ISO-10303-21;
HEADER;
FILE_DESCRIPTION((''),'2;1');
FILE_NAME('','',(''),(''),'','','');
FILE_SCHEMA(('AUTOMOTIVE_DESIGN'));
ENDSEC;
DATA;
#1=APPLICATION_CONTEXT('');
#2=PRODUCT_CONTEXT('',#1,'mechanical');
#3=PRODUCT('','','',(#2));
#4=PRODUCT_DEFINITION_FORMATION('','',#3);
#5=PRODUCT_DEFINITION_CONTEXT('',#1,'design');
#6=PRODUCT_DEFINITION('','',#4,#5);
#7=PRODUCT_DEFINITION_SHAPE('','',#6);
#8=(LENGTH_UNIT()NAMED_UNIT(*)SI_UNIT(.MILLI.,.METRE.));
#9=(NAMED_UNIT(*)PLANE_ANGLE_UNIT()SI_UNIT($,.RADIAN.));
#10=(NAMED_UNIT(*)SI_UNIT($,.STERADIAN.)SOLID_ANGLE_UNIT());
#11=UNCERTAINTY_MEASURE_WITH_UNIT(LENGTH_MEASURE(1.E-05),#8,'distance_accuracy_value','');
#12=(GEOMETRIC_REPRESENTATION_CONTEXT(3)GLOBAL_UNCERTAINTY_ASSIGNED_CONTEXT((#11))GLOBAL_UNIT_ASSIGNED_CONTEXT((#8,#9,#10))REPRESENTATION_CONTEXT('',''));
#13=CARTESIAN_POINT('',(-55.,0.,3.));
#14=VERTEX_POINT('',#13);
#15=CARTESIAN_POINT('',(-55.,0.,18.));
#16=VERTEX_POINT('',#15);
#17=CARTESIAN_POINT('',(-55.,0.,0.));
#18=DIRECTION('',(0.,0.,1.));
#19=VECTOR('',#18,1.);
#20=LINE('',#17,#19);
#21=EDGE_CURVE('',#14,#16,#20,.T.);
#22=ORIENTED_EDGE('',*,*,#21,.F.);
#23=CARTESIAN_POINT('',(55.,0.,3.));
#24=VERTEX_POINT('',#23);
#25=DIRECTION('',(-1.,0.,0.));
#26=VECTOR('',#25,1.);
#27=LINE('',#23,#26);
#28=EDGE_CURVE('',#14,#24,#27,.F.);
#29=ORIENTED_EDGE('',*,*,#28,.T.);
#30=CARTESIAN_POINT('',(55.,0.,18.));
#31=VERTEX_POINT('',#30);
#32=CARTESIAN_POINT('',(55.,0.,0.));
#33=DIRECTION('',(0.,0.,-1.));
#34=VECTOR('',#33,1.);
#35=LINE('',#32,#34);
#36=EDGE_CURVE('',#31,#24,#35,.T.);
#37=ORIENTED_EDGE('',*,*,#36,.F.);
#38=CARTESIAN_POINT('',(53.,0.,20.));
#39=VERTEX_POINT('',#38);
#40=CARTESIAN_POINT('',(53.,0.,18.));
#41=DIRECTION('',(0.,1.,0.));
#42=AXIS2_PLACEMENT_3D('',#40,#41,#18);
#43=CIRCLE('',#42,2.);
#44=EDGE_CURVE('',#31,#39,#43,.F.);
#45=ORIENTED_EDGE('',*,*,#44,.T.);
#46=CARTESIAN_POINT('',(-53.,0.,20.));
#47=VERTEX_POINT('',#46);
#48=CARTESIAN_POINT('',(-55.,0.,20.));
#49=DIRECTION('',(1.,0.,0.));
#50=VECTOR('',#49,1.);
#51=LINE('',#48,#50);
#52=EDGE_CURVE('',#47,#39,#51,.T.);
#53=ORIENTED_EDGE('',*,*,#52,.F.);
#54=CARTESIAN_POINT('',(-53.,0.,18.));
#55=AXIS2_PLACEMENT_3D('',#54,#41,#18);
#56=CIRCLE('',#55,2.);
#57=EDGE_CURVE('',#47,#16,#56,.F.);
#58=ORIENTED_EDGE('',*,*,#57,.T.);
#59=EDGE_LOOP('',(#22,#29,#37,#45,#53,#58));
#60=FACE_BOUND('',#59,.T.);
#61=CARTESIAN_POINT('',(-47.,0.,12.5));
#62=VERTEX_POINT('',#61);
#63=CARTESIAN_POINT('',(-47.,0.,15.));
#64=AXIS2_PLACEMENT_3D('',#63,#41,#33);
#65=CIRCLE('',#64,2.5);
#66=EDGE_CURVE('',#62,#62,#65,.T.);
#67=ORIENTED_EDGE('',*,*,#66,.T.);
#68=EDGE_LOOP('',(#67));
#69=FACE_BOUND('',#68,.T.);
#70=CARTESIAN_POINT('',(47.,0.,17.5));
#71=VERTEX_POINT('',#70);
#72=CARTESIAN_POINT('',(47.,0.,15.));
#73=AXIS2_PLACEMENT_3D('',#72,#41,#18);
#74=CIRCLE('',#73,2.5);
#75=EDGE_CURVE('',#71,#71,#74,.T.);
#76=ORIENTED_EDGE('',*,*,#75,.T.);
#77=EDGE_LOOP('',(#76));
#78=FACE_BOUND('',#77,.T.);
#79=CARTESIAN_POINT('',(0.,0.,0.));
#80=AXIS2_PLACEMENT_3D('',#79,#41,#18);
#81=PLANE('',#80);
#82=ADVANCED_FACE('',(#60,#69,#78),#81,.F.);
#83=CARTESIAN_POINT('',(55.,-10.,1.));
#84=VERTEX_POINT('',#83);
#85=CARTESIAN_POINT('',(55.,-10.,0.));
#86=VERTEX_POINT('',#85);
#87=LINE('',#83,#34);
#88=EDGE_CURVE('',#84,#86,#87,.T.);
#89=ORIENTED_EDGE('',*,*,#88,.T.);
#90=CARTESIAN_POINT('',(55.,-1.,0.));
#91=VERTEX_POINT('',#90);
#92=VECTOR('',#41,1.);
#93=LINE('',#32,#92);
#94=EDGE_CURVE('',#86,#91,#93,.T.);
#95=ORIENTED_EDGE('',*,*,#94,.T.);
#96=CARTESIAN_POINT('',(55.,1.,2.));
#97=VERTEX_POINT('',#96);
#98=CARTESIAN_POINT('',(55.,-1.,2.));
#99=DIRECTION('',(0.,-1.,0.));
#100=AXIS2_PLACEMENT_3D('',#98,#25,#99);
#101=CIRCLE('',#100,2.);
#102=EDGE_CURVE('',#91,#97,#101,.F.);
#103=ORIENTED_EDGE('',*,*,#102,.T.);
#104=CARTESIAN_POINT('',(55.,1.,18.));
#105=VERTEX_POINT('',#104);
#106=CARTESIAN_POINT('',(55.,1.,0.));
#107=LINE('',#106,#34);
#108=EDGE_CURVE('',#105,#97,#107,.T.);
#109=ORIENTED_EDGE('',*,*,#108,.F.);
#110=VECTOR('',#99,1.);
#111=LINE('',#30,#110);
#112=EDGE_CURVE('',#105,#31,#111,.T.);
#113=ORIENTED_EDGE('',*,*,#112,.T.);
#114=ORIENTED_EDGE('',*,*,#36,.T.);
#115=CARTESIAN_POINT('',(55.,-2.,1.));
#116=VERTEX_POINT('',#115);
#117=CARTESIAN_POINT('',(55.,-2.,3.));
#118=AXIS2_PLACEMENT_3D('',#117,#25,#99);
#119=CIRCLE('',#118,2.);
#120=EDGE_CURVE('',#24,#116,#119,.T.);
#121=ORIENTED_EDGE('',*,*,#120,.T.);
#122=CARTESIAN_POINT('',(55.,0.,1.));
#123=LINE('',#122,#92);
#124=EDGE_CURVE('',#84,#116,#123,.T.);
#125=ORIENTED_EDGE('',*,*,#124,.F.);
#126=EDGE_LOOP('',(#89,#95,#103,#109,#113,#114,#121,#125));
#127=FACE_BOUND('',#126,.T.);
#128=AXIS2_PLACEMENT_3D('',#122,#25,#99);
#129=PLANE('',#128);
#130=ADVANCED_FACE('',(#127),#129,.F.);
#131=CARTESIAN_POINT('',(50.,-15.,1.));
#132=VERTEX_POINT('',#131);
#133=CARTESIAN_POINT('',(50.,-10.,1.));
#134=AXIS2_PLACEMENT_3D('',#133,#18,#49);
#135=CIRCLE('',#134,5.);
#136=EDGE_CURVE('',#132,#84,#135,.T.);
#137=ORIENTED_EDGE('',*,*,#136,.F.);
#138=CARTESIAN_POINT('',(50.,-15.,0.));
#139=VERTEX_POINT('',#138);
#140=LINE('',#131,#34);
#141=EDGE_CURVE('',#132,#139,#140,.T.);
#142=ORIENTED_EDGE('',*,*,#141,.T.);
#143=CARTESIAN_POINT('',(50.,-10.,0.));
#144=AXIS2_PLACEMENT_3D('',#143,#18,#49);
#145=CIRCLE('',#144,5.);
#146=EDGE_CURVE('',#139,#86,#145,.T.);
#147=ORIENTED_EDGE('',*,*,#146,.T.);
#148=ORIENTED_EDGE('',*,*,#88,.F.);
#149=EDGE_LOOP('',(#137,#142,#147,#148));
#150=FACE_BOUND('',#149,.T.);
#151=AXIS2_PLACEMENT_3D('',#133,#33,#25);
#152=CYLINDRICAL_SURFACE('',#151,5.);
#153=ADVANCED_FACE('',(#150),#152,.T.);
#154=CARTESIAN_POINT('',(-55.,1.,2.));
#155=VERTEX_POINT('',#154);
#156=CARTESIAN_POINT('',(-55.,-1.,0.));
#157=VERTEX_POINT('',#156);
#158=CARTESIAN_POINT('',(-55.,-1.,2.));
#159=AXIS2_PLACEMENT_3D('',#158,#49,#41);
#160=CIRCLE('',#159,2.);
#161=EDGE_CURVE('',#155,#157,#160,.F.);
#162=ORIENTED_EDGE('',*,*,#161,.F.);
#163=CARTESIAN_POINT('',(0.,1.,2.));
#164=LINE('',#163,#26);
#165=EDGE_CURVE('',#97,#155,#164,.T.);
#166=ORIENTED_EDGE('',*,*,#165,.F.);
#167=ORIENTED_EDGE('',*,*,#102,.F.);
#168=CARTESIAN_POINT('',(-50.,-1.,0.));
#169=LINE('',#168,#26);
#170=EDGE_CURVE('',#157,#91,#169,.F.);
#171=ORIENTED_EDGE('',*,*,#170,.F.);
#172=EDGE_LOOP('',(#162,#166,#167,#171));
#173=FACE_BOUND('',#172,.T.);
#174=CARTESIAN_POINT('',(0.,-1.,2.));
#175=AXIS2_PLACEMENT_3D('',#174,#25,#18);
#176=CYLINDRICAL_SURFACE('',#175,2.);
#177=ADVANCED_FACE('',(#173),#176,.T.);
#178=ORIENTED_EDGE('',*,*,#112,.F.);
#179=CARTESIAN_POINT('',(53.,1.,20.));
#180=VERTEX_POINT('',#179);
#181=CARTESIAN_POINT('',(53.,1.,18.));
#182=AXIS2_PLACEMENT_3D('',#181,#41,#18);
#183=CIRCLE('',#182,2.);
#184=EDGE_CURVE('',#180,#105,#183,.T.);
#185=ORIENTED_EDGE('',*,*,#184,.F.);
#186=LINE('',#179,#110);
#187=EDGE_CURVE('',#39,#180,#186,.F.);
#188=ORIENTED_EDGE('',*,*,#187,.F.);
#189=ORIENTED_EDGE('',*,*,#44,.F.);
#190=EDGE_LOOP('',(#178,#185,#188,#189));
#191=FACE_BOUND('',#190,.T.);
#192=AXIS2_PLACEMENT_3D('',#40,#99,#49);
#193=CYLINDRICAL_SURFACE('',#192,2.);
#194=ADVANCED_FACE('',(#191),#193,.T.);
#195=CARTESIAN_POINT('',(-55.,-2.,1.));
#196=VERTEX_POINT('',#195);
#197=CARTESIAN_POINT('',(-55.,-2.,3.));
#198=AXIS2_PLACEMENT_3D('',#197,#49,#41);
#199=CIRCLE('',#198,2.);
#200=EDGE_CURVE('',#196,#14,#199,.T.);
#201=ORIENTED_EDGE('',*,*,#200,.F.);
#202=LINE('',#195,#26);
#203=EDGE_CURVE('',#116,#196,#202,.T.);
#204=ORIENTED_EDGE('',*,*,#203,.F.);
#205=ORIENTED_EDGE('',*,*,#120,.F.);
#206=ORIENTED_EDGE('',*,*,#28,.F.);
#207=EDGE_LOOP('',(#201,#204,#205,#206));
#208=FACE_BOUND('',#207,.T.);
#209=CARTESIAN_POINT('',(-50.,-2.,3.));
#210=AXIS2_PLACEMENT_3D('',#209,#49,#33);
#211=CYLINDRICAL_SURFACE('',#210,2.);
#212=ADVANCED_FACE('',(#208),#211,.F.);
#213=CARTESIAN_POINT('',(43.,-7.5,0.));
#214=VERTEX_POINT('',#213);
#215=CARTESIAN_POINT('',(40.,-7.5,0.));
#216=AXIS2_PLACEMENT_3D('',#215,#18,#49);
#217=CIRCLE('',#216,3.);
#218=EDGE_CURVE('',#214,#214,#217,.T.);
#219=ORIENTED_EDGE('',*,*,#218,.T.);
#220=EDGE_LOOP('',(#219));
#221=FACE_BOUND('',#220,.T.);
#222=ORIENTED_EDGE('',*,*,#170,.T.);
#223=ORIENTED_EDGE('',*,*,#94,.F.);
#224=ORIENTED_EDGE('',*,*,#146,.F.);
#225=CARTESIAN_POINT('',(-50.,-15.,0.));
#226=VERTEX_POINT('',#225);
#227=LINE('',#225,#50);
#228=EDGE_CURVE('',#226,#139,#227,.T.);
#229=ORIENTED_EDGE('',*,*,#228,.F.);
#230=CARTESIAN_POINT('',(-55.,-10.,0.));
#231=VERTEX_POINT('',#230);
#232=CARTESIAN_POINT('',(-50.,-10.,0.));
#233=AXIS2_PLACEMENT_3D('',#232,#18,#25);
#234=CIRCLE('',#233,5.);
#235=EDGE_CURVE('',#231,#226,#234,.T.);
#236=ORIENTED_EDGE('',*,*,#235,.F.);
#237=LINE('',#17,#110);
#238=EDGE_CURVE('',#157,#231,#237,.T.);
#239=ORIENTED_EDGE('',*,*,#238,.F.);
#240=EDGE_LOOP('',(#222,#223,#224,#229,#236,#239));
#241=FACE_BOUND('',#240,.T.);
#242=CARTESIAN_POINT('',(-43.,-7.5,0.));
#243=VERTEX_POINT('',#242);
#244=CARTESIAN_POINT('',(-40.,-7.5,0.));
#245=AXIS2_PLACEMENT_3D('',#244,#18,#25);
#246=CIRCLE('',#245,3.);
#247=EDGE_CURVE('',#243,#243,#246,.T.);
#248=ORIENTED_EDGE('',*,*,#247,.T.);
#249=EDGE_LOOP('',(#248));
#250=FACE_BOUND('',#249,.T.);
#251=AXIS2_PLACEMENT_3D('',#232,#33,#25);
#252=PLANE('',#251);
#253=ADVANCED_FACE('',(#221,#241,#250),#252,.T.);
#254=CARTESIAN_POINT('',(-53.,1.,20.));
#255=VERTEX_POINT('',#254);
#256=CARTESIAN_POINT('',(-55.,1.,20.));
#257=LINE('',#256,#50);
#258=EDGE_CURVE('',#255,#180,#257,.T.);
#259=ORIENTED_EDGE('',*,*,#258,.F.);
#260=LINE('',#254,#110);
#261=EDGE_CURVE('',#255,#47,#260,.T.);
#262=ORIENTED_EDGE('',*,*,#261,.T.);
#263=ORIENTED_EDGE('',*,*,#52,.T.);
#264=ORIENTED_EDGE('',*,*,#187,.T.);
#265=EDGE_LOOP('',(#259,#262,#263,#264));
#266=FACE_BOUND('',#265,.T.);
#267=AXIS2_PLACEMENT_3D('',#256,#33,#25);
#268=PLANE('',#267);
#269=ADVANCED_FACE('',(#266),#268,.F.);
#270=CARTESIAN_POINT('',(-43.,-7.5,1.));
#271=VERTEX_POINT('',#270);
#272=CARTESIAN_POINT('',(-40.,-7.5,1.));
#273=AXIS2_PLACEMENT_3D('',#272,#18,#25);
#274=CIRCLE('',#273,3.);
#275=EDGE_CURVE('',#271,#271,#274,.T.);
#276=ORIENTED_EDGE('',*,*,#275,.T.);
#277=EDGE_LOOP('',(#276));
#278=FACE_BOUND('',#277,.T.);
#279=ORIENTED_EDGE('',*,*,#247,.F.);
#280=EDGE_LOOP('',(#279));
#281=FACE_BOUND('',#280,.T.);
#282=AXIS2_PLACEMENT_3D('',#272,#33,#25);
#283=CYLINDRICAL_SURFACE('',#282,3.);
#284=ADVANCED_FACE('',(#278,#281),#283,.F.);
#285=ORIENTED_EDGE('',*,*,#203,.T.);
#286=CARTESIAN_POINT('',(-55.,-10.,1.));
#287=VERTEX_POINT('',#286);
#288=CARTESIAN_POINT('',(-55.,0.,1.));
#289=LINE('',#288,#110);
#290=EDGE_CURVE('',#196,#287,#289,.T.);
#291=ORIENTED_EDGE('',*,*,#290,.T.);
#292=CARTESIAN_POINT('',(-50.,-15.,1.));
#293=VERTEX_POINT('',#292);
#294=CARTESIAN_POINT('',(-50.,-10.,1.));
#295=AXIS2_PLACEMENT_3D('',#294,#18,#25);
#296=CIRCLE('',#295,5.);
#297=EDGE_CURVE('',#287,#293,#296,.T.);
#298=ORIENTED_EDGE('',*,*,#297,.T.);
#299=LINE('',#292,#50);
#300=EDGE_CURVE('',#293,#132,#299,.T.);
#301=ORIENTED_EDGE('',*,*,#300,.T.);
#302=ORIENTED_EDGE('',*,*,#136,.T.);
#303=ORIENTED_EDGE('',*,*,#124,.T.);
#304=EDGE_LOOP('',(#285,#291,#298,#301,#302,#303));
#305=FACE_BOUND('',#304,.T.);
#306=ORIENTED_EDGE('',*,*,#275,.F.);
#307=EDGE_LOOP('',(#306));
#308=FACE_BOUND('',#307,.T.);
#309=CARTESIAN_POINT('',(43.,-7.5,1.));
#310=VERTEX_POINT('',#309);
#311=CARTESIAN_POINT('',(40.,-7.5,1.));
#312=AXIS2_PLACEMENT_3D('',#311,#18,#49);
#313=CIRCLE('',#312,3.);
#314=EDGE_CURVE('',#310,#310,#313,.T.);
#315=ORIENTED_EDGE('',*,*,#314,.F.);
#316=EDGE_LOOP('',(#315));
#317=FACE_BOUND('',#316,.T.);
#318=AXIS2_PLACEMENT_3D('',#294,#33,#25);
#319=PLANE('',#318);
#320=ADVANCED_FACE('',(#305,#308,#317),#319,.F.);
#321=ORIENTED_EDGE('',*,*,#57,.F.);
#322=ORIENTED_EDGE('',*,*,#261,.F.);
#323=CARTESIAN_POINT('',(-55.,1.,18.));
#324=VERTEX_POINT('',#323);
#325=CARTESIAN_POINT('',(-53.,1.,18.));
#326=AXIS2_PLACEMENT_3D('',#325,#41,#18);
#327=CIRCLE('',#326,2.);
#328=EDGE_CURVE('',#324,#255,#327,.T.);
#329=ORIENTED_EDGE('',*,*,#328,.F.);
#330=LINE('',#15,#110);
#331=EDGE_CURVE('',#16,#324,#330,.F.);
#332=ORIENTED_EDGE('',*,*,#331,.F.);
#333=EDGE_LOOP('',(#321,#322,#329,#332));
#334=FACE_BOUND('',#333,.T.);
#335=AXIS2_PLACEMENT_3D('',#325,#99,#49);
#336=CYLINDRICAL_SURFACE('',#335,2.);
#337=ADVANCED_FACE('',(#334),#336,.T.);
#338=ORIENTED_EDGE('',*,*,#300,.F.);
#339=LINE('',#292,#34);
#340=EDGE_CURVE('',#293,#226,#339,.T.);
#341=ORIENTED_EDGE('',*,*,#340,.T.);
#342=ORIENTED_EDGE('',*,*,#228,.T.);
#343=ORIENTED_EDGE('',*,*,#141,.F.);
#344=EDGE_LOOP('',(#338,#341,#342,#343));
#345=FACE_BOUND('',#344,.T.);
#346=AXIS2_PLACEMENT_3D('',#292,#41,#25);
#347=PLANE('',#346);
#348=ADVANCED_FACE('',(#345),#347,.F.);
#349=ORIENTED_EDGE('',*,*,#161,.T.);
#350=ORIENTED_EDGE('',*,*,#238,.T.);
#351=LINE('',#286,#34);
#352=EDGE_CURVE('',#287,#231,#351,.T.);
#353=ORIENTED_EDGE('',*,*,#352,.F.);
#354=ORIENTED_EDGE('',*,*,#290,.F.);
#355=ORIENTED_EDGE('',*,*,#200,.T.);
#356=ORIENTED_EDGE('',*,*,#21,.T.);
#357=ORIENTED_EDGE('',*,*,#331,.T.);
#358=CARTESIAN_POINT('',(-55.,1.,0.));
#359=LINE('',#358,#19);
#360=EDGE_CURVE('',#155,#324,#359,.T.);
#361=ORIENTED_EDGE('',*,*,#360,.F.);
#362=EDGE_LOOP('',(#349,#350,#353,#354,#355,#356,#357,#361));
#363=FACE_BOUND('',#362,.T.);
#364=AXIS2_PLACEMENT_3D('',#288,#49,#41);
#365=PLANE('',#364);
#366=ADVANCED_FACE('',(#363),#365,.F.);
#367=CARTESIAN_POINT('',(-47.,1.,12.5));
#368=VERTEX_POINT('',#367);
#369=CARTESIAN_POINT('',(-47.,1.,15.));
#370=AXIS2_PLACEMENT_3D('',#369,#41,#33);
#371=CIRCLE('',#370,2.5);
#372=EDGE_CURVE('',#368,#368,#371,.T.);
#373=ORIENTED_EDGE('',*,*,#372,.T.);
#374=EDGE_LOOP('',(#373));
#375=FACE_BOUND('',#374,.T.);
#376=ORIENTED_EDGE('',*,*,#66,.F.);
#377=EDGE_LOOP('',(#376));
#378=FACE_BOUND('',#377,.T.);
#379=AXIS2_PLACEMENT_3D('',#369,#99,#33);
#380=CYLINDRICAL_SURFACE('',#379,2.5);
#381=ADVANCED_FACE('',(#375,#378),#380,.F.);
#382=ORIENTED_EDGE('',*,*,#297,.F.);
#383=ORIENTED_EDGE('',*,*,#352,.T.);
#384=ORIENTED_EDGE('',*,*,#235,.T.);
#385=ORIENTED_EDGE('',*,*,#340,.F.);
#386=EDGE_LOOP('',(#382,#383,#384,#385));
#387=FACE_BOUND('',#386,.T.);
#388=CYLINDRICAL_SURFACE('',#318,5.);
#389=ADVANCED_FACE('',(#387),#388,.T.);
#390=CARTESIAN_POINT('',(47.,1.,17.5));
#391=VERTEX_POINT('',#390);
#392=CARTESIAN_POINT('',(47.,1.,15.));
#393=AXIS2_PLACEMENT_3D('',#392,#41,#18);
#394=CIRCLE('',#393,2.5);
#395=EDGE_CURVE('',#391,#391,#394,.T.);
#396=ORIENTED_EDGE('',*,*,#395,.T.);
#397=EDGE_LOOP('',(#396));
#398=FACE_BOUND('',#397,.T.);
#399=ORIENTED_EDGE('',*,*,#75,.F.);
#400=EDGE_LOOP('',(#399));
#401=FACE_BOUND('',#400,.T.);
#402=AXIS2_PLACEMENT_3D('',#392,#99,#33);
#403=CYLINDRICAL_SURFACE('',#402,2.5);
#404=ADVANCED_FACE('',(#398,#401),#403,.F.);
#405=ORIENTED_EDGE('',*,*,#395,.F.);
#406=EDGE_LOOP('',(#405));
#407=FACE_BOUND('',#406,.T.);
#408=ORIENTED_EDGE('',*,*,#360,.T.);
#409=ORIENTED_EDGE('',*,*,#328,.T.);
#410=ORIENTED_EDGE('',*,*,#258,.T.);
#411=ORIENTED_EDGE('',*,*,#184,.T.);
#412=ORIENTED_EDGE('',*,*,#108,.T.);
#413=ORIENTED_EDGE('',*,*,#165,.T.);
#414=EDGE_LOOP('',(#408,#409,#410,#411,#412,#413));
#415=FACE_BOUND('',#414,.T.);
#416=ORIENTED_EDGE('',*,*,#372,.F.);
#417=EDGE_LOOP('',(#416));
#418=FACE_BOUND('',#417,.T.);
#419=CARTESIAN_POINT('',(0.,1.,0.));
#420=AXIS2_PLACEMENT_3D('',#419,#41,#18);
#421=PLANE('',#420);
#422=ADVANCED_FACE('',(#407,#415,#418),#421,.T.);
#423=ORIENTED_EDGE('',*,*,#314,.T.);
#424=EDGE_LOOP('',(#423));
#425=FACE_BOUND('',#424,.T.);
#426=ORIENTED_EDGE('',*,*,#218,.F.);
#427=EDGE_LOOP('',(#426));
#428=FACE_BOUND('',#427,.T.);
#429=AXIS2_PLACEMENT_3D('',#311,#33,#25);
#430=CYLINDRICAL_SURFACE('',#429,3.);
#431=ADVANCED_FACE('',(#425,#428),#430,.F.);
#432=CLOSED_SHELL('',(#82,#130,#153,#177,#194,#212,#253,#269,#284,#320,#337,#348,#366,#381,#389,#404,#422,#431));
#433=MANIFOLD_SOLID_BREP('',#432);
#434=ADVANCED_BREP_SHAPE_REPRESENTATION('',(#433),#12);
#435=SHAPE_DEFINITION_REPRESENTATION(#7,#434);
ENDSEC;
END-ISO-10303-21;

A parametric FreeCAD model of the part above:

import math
import FreeCAD as App
import Part
import Sketcher
from FreeCAD import Vector


def edges_at(feature, points):
    """Names of the edges that pass closest to the given points."""
    edges = feature.Shape.Edges
    near = lambda p: min(range(len(edges)), key=lambda i: edges[i].distToShape(Part.Vertex(*p))[0])
    return sorted({f"Edge{near(p) + 1}" for p in points})


def add_polygon(sketch, points):
    """Adds a closed chain of lines whose ends are joined by coincident constraints."""
    first, n = sketch.GeometryCount, len(points)
    for a, b in zip(points, points[1:] + points[:1]):
        sketch.addGeometry(Part.LineSegment(App.Vector(*a, 0), App.Vector(*b, 0)), False)
    for i in range(n):
        sketch.addConstraint(Sketcher.Constraint("Coincident", first + i, 2, first + (i + 1) % n, 1))

doc = App.newDocument("Part")
body = doc.addObject("PartDesign::Body", "Body")

sketch1 = body.newObject("Sketcher::SketchObject", "Sketch")
sketch1.AttachmentSupport = (doc.getObject("XY_Plane"), [""])
sketch1.MapMode = "FlatFace"
sketch1.addGeometry(Part.LineSegment(Vector(55, 0, 0), Vector(-55, 0, 0)), False)
sketch1.addGeometry(Part.LineSegment(Vector(-55, 0, 0), Vector(-55, -10, 0)), False)
sketch1.addGeometry(Part.ArcOfCircle(Part.Circle(Vector(-50, -10, 0), Vector(0, 0, 1), 5), math.radians(180), math.radians(270)), False)
sketch1.addGeometry(Part.LineSegment(Vector(-50, -15, 0), Vector(50, -15, 0)), False)
sketch1.addGeometry(Part.ArcOfCircle(Part.Circle(Vector(50, -10, 0), Vector(0, 0, 1), 5), math.radians(-90), math.radians(0)), False)
sketch1.addGeometry(Part.LineSegment(Vector(55, -10, 0), Vector(55, 0, 0)), False)
sketch1.addGeometry(Part.Circle(Vector(40, -7.5, 0), Vector(0, 0, 1), 3), False)
sketch1.addGeometry(Part.Circle(Vector(-40, -7.5, 0), Vector(0, 0, 1), 3), False)
sketch1.addConstraint(Sketcher.Constraint("Coincident", 0, 2, 1, 1))
sketch1.addConstraint(Sketcher.Constraint("Tangent", 1, 2, 2, 1))
sketch1.addConstraint(Sketcher.Constraint("Tangent", 2, 2, 3, 1))
sketch1.addConstraint(Sketcher.Constraint("Tangent", 3, 2, 4, 1))
sketch1.addConstraint(Sketcher.Constraint("Tangent", 4, 2, 5, 1))
sketch1.addConstraint(Sketcher.Constraint("Coincident", 5, 2, 0, 1))
sketch1.addConstraint(Sketcher.Constraint("Horizontal", 0))
sketch1.addConstraint(Sketcher.Constraint("Vertical", 1))
sketch1.addConstraint(Sketcher.Constraint("Horizontal", 3))
sketch1.addConstraint(Sketcher.Constraint("Vertical", 5))
sketch1.addConstraint(Sketcher.Constraint("Equal", 2, 4))
sketch1.addConstraint(Sketcher.Constraint("Equal", 6, 7))
sketch1.addConstraint(Sketcher.Constraint("Symmetric", 0, 2, 5, 2, -1, 1))
sketch1.addConstraint(Sketcher.Constraint("Symmetric", 6, 3, 7, 3, -2))
sketch1.addConstraint(Sketcher.Constraint("Diameter", 6, 6.0))
sketch1.addConstraint(Sketcher.Constraint("Radius", 2, 5.0))
sketch1.addConstraint(Sketcher.Constraint("DistanceX", 0, 2, 0, 1, 110.0))
sketch1.addConstraint(Sketcher.Constraint("DistanceY", 1, 2, 1, 1, 10.0))
sketch1.addConstraint(Sketcher.Constraint("DistanceX", -1, 1, 6, 3, 40.0))
sketch1.addConstraint(Sketcher.Constraint("DistanceY", 6, 3, -1, 1, 7.5))
pad1 = body.newObject("PartDesign::Pad", "Pad")
pad1.Profile = sketch1
pad1.Length = 1

sketch2 = body.newObject("Sketcher::SketchObject", "Sketch001")
sketch2.AttachmentSupport = (doc.getObject("XZ_Plane"), [""])
sketch2.MapMode = "FlatFace"
add_polygon(sketch2, [(-55, 0), (-55, 20), (55, 20), (55, 0)])
sketch2.addGeometry(Part.Circle(Vector(-47, 15, 0), Vector(0, 0, 1), 2.5), False)
sketch2.addGeometry(Part.Circle(Vector(47, 15, 0), Vector(0, 0, 1), 2.5), False)
sketch2.addConstraint(Sketcher.Constraint("Vertical", 0))
sketch2.addConstraint(Sketcher.Constraint("Horizontal", 1))
sketch2.addConstraint(Sketcher.Constraint("Vertical", 2))
sketch2.addConstraint(Sketcher.Constraint("Horizontal", 3))
sketch2.addConstraint(Sketcher.Constraint("Equal", 4, 5))
sketch2.addConstraint(Sketcher.Constraint("Symmetric", 2, 2, 3, 2, -1, 1))
sketch2.addConstraint(Sketcher.Constraint("Symmetric", 4, 3, 5, 3, -2))
sketch2.addConstraint(Sketcher.Constraint("Diameter", 4, 5.0))
sketch2.addConstraint(Sketcher.Constraint("DistanceX", 1, 1, 1, 2, 110.0))
sketch2.addConstraint(Sketcher.Constraint("DistanceY", 0, 1, 0, 2, 20.0))
sketch2.addConstraint(Sketcher.Constraint("DistanceX", 4, 3, -1, 1, 47.0))
sketch2.addConstraint(Sketcher.Constraint("DistanceY", -1, 1, 4, 3, 15.0))
pad2 = body.newObject("PartDesign::Pad", "Pad001")
pad2.Profile = sketch2
pad2.Length = 1
pad2.Reversed = True
doc.recompute()

fillet = body.newObject("PartDesign::Fillet", "Fillet")
fillet.Base = (pad2, edges_at(pad2, [
    (0, 0, 1),
    (0, 1, 0),
    (55, 0.5, 20),
    (-55, 0.5, 20),
]))
fillet.Radius = 2

doc.recompute()
